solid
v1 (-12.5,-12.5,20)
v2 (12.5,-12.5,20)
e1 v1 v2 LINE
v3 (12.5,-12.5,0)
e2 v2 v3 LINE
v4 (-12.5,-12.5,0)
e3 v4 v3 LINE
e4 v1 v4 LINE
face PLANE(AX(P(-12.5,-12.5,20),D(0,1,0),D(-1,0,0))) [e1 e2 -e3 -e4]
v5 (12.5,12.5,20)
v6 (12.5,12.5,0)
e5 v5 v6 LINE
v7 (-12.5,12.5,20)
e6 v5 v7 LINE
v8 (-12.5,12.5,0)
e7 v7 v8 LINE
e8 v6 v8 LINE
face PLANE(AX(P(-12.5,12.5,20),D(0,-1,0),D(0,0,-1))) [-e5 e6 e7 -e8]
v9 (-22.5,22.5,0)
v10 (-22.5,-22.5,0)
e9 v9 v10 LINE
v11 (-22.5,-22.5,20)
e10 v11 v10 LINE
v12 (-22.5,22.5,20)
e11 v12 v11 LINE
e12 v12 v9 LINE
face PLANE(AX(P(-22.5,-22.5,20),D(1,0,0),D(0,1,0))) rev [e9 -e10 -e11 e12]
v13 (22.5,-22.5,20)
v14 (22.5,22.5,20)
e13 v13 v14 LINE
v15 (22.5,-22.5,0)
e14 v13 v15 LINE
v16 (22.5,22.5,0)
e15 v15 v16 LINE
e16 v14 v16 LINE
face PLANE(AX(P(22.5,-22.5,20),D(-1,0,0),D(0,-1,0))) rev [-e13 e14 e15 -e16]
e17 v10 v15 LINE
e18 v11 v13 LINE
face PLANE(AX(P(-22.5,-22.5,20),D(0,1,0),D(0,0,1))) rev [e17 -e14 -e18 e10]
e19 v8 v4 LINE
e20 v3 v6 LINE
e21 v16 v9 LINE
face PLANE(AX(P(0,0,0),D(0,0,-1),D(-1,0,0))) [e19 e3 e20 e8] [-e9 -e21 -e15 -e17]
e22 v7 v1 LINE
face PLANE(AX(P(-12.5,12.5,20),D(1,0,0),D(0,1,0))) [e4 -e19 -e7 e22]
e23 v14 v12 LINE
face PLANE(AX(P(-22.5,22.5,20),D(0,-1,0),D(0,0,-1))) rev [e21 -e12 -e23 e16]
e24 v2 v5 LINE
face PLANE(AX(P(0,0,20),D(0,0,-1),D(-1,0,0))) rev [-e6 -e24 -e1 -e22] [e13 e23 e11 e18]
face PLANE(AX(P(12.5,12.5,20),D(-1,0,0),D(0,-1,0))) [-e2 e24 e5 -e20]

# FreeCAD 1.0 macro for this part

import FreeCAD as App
import Part
import Sketcher
from FreeCAD import Vector
Q = App.Units.Quantity


def add_polygon(sketch, points):
    """Adds a closed chain of lines whose ends are joined by coincident constraints."""
    first, n = sketch.GeometryCount, len(points)
    for a, b in zip(points, points[1:] + points[:1]):
        sketch.addGeometry(Part.LineSegment(App.Vector(*a, 0), App.Vector(*b, 0)), False)
    for i in range(n):
        sketch.addConstraint(Sketcher.Constraint("Coincident", first + i, 2, first + (i + 1) % n, 1))

doc = App.newDocument("Part")
body = doc.addObject("PartDesign::Body", "Body")

# Sketch on XY plane
sketch1 = body.newObject("Sketcher::SketchObject", "Sketch")
sketch1.AttachmentSupport = (doc.getObject("XY_Plane"), [""])
sketch1.MapMode = "FlatFace"
add_polygon(sketch1, [(-22, 22), (-22, -22), (22, -22), (22, 22)])  # lines 0-3
add_polygon(sketch1, [(12, -12), (-12, -12), (-12, 12), (12, 12)])  # lines 4-7
sketch1.addConstraint([
    Sketcher.Constraint("Vertical", 0),
    Sketcher.Constraint("Horizontal", 1),
    Sketcher.Constraint("Vertical", 2),
    Sketcher.Constraint("Horizontal", 3),
    Sketcher.Constraint("Horizontal", 4),
    Sketcher.Constraint("Vertical", 5),
    Sketcher.Constraint("Horizontal", 6),
    Sketcher.Constraint("Vertical", 7),
    Sketcher.Constraint("Symmetric", 0, 2, 2, 2, -1, 1),
    Sketcher.Constraint("Symmetric", 4, 2, 6, 2, -1, 1),
    Sketcher.Constraint("Equal", 3, 0),
    Sketcher.Constraint("Equal", 6, 5),
    Sketcher.Constraint("DistanceX", 1, 1, 1, 2, Q("45 mm")),
    Sketcher.Constraint("DistanceX", 4, 2, 4, 1, Q("25 mm")),
])
pad1 = body.newObject("PartDesign::Pad", "Pad")
pad1.Profile = sketch1
pad1.Length = 20

doc.recompute()
